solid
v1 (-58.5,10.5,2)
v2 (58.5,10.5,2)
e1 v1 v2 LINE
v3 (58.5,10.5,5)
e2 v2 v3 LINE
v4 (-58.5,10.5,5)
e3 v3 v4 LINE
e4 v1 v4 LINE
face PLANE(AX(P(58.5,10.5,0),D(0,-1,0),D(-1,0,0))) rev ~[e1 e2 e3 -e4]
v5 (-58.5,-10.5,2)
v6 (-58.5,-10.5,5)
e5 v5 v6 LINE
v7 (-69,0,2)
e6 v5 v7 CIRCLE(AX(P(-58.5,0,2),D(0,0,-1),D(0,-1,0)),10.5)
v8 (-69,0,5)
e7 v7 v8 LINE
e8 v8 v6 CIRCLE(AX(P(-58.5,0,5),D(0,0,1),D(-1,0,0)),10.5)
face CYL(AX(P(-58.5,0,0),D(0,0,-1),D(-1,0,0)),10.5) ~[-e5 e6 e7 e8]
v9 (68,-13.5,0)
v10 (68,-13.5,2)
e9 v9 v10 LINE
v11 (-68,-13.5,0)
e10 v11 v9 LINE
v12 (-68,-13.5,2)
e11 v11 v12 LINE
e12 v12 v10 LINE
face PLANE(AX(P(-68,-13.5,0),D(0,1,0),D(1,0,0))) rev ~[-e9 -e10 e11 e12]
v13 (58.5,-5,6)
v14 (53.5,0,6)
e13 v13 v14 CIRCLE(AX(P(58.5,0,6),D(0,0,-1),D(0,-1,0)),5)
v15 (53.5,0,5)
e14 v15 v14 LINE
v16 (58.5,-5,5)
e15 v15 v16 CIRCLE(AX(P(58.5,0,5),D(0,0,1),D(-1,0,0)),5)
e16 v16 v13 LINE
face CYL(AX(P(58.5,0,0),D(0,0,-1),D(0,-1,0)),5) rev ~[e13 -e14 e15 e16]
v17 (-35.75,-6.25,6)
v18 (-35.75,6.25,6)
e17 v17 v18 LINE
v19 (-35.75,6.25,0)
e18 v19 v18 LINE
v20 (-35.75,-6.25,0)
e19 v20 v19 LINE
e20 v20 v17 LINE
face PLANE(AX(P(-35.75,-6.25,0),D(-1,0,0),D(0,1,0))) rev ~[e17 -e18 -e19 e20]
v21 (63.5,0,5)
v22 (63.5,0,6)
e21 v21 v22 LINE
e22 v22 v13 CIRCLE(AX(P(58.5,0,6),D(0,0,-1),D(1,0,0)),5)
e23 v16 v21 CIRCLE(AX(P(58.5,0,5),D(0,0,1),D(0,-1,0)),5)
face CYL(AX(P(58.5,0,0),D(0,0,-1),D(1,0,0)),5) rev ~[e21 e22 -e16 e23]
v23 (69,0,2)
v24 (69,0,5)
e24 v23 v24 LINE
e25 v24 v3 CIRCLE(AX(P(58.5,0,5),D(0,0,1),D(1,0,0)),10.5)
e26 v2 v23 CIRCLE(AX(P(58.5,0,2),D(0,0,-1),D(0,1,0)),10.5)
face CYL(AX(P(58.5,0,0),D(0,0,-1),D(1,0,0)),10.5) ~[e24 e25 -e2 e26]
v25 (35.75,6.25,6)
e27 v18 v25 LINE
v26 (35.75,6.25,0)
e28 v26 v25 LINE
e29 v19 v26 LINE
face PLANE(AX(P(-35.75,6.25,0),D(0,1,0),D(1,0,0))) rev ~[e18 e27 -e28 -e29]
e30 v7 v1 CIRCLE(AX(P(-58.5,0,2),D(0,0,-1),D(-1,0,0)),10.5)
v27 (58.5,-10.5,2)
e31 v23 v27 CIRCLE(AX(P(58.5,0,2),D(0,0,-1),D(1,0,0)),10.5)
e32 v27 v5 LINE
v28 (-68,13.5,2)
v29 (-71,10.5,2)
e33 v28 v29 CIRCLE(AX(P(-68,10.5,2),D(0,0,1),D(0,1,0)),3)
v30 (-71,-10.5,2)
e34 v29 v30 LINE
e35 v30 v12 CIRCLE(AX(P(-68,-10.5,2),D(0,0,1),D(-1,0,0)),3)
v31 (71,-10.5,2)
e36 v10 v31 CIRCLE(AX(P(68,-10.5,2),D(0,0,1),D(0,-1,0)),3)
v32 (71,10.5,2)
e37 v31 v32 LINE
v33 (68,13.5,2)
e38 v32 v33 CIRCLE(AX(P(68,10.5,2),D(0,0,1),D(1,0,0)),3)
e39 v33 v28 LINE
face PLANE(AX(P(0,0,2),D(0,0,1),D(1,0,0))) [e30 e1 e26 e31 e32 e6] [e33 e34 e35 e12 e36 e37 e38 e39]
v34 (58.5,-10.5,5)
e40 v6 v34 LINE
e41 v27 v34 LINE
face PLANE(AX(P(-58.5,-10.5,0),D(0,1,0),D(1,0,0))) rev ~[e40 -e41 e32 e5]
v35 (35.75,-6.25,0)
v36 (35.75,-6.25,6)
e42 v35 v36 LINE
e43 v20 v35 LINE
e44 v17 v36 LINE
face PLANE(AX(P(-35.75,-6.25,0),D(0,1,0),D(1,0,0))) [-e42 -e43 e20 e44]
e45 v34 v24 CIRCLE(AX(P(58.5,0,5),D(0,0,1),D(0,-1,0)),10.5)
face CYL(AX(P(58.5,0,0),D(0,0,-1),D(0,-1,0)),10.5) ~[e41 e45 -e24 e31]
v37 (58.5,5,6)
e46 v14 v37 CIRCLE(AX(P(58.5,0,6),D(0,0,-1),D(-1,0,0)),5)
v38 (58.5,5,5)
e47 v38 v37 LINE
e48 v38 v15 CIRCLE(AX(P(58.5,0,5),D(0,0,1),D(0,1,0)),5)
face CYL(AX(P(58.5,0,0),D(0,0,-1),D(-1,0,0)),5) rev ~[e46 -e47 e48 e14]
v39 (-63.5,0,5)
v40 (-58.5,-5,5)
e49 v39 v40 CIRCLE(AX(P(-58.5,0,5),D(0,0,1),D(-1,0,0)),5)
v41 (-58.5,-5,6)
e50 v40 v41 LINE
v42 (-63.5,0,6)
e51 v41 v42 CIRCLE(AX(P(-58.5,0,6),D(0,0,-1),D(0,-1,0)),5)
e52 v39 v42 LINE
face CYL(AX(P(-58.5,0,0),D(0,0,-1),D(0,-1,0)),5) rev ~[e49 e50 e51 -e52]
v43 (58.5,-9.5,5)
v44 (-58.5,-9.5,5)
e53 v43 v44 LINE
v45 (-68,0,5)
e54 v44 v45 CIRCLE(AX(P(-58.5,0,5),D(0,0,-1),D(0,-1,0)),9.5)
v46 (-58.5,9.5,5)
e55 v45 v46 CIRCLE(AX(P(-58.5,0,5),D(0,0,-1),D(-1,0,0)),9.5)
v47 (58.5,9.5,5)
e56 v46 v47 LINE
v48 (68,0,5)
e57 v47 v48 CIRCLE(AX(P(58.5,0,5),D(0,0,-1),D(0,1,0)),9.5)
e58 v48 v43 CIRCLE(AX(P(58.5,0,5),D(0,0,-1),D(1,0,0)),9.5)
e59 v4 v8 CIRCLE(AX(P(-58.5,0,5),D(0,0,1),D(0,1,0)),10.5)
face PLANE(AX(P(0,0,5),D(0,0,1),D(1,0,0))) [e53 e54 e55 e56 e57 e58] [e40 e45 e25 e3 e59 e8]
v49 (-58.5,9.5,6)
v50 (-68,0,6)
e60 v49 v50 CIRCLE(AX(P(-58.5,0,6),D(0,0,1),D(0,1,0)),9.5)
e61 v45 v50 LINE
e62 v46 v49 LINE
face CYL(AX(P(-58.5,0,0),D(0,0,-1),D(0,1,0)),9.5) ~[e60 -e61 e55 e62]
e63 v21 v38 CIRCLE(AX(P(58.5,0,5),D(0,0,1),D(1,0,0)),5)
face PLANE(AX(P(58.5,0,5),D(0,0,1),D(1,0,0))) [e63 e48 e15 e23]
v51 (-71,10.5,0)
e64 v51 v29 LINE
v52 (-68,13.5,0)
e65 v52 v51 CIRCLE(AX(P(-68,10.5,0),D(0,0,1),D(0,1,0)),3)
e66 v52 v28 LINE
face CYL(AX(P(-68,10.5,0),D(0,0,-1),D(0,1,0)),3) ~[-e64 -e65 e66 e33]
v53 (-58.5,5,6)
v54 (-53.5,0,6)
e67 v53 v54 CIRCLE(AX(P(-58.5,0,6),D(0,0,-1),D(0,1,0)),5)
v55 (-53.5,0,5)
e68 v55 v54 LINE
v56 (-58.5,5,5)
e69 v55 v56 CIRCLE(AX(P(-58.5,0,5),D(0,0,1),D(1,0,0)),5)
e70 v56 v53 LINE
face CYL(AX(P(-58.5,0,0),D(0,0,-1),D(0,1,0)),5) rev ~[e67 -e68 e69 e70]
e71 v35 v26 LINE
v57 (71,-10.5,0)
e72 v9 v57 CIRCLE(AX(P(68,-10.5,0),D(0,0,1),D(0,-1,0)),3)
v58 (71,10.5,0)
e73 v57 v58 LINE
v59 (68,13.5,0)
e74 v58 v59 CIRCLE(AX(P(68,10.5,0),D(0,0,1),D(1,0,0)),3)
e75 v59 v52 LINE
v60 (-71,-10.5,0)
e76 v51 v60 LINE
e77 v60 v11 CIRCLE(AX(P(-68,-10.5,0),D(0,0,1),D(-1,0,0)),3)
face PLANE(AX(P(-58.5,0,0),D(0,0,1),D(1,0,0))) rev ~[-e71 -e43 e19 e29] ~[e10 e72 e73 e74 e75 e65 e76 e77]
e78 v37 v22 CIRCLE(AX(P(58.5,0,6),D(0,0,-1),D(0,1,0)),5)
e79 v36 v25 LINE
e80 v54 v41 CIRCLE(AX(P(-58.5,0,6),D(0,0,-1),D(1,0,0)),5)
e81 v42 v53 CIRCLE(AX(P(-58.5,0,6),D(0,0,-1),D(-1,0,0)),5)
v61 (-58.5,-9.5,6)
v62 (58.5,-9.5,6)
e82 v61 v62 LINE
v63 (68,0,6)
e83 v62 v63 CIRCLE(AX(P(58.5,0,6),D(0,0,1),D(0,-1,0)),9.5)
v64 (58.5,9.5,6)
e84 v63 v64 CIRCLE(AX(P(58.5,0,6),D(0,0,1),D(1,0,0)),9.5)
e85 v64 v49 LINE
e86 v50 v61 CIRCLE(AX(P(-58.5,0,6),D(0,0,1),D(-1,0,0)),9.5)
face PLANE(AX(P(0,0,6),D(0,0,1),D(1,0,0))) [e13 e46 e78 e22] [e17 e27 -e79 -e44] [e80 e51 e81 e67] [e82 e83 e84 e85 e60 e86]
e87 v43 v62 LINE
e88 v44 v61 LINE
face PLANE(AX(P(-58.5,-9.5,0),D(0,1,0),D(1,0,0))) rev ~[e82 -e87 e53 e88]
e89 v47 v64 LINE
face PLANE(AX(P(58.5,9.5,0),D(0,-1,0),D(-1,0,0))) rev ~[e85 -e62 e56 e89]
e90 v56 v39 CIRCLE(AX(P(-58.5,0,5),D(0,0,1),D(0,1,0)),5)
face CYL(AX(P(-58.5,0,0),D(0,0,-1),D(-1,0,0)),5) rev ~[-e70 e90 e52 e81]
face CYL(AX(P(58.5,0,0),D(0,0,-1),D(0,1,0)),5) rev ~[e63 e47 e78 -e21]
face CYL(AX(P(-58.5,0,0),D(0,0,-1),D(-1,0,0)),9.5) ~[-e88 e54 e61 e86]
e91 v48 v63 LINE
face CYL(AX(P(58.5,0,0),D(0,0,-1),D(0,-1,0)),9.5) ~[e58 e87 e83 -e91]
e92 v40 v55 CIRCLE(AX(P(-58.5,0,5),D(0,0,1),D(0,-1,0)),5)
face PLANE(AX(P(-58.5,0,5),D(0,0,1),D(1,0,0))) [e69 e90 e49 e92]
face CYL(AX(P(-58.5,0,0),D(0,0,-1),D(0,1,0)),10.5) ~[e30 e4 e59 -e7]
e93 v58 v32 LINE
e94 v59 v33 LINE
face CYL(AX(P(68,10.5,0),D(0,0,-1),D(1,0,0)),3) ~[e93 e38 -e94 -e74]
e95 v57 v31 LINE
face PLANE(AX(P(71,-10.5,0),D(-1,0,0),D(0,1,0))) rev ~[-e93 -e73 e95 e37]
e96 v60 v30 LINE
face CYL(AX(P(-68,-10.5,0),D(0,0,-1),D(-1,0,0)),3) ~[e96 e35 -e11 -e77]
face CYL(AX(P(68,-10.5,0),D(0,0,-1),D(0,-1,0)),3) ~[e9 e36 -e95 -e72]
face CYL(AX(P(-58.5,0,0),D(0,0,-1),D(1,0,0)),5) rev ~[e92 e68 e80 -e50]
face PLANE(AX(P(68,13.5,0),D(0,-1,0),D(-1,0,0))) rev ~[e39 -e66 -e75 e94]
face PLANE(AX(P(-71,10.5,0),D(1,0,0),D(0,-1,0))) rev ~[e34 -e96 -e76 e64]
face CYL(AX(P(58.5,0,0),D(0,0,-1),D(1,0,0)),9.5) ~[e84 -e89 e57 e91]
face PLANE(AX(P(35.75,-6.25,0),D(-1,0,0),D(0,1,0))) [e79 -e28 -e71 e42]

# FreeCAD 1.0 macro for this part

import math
import FreeCAD as App
import Part
import Sketcher

V = App.Vector
Q = App.Units.Quantity


def add_polygon(sketch, points):
    """Adds a closed chain of lines whose ends are joined by coincident constraints."""
    first, n = sketch.GeometryCount, len(points)
    for a, b in zip(points, points[1:] + points[:1]):
        sketch.addGeometry(Part.LineSegment(App.Vector(*a, 0), App.Vector(*b, 0)), False)
    for i in range(n):
        sketch.addConstraint(Sketcher.Constraint("Coincident", first + i, 2, first + (i + 1) % n, 1))

doc = App.newDocument("Part")
body = doc.addObject("PartDesign::Body", "Body")

sketch1 = doc.addObject("Sketcher::SketchObject", "Sketch")
body.addObject(sketch1)
sketch1.AttachmentSupport = (doc.XY_Plane, [""])
sketch1.MapMode = "FlatFace"
sketch1.addGeometry([
    Part.LineSegment(V(-71, 10.5, 0), V(-71, -10.5, 0)),
    Part.ArcOfCircle(Part.Circle(V(-68, -10.5, 0), V(0, 0, 1), 3), math.radians(180), math.radians(270)),
    Part.LineSegment(V(-68, -13.5, 0), V(68, -13.5, 0)),
    Part.ArcOfCircle(Part.Circle(V(68, -10.5, 0), V(0, 0, 1), 3), math.radians(-90), math.radians(0)),
    Part.LineSegment(V(71, -10.5, 0), V(71, 10.5, 0)),
    Part.ArcOfCircle(Part.Circle(V(68, 10.5, 0), V(0, 0, 1), 3), math.radians(0), math.radians(90)),
    Part.LineSegment(V(68, 13.5, 0), V(-68, 13.5, 0)),
    Part.ArcOfCircle(Part.Circle(V(-68, 10.5, 0), V(0, 0, 1), 3), math.radians(90), math.radians(180)),
    Part.ArcOfCircle(Part.Circle(V(58.5, 0, 0), V(0, 0, 1), 10.5), math.radians(-90), math.radians(0)),
    Part.LineSegment(V(58.5, -10.5, 0), V(-58.5, -10.5, 0)),
    Part.ArcOfCircle(Part.Circle(V(-58.5, 0, 0), V(0, 0, 1), 10.5), math.radians(180), math.radians(270)),
    Part.ArcOfCircle(Part.Circle(V(-58.5, 0, 0), V(0, 0, 1), 10.5), math.radians(90), math.radians(180)),
    Part.LineSegment(V(-58.5, 10.5, 0), V(58.5, 10.5, 0)),
    Part.ArcOfCircle(Part.Circle(V(58.5, 0, 0), V(0, 0, 1), 10.5), math.radians(0), math.radians(90)),
], False)
sketch1.addConstraint([
    Sketcher.Constraint("Tangent", 0, 2, 1, 1),
    Sketcher.Constraint("Tangent", 1, 2, 2, 1),
    Sketcher.Constraint("Tangent", 2, 2, 3, 1),
    Sketcher.Constraint("Tangent", 3, 2, 4, 1),
    Sketcher.Constraint("Tangent", 4, 2, 5, 1),
    Sketcher.Constraint("Tangent", 5, 2, 6, 1),
    Sketcher.Constraint("Tangent", 6, 2, 7, 1),
    Sketcher.Constraint("Tangent", 7, 2, 0, 1),
    Sketcher.Constraint("Tangent", 8, 1, 9, 1),
    Sketcher.Constraint("Tangent", 9, 2, 10, 2),
    Sketcher.Constraint("Tangent", 10, 1, 11, 2),
    Sketcher.Constraint("Tangent", 11, 1, 12, 1),
    Sketcher.Constraint("Tangent", 12, 2, 13, 2),
    Sketcher.Constraint("Tangent", 13, 1, 8, 2),
    Sketcher.Constraint("Vertical", 0),
    Sketcher.Constraint("Horizontal", 2),
    Sketcher.Constraint("Vertical", 4),
    Sketcher.Constraint("Horizontal", 6),
    Sketcher.Constraint("Horizontal", 9),
    Sketcher.Constraint("Horizontal", 12),
    Sketcher.Constraint("Equal", 1, 3),
    Sketcher.Constraint("Equal", 3, 5),
    Sketcher.Constraint("Equal", 5, 7),
    Sketcher.Constraint("Equal", 8, 10),
    Sketcher.Constraint("Equal", 10, 11),
    Sketcher.Constraint("Symmetric", 1, 3, 5, 3, -1, 1),
    Sketcher.Constraint("Symmetric", 8, 3, 10, 3, -1, 1),
    Sketcher.Constraint("PointOnObject", 10, 1, -1),
    Sketcher.Constraint("PointOnObject", 13, 1, -1),
    Sketcher.Constraint("Horizontal", 3, 2, 8, 1),
    Sketcher.Constraint("Radius", 1, Q("3 mm")),
    Sketcher.Constraint("Radius", 8, Q("10.5 mm")),
    Sketcher.Constraint("DistanceX", 2, 1, 2, 2, Q("136 mm")),
    Sketcher.Constraint("DistanceX", 9, 2, 9, 1, Q("117 mm")),
])
pad1 = doc.addObject("PartDesign::Pad", "Pad")
body.addObject(pad1)
pad1.Profile = sketch1
pad1.Length = 2
body2 = doc.addObject("PartDesign::Body", "Body001")

sketch2 = doc.addObject("Sketcher::SketchObject", "Sketch001")
body2.addObject(sketch2)
sketch2.AttachmentSupport = (doc.getObject("XY_Plane001"), [""])
sketch2.MapMode = "FlatFace"
sketch2.addGeometry(Part.ArcOfCircle(Part.Circle(V(-58, 0, 0), V(0, 0, 1), 10), math.radians(180), math.radians(270)), False)
sketch2.addGeometry(Part.LineSegment(V(-58, -10, 0), V(58, -10, 0)), False)
sketch2.addGeometry(Part.ArcOfCircle(Part.Circle(V(58, 0, 0), V(0, 0, 1), 10), math.radians(-90), math.radians(0)), False)
sketch2.addGeometry(Part.ArcOfCircle(Part.Circle(V(58, 0, 0), V(0, 0, 1), 10), math.radians(0), math.radians(90)), False)
sketch2.addGeometry(Part.LineSegment(V(58, 10, 0), V(-58, 10, 0)), False)
sketch2.addGeometry(Part.ArcOfCircle(Part.Circle(V(-58, 0, 0), V(0, 0, 1), 10), math.radians(90), math.radians(180)), False)
sketch2.addGeometry(Part.ArcOfCircle(Part.Circle(V(-58, 0, 0), V(0, 0, 1), 5), math.radians(180), math.radians(270)), False)
sketch2.addGeometry(Part.ArcOfCircle(Part.Circle(V(-58, 0, 0), V(0, 0, 1), 5), math.radians(90), math.radians(180)), False)
sketch2.addGeometry(Part.ArcOfCircle(Part.Circle(V(-58, 0, 0), V(0, 0, 1), 5), math.radians(0), math.radians(90)), False)
sketch2.addGeometry(Part.ArcOfCircle(Part.Circle(V(-58, 0, 0), V(0, 0, 1), 5), math.radians(-90), math.radians(0)), False)
add_polygon(sketch2, [(36, -6), (-36, -6), (-36, 6), (36, 6)])
sketch2.addGeometry(Part.ArcOfCircle(Part.Circle(V(58, 0, 0), V(0, 0, 1), 5), math.radians(180), math.radians(270)), False)
sketch2.addGeometry(Part.ArcOfCircle(Part.Circle(V(58, 0, 0), V(0, 0, 1), 5), math.radians(90), math.radians(180)), False)
sketch2.addGeometry(Part.ArcOfCircle(Part.Circle(V(58, 0, 0), V(0, 0, 1), 5), math.radians(0), math.radians(90)), False)
sketch2.addGeometry(Part.ArcOfCircle(Part.Circle(V(58, 0, 0), V(0, 0, 1), 5), math.radians(-90), math.radians(0)), False)
sketch2.addConstraint([
    Sketcher.Constraint("Tangent", 0, 2, 1, 1),
    Sketcher.Constraint("Tangent", 1, 2, 2, 1),
    Sketcher.Constraint("Tangent", 2, 2, 3, 1),
    Sketcher.Constraint("Tangent", 3, 2, 4, 1),
    Sketcher.Constraint("Tangent", 4, 2, 5, 1),
    Sketcher.Constraint("Tangent", 5, 2, 0, 1),
    Sketcher.Constraint("Tangent", 6, 1, 7, 2),
    Sketcher.Constraint("Tangent", 7, 1, 8, 2),
    Sketcher.Constraint("Tangent", 8, 1, 9, 2),
    Sketcher.Constraint("Tangent", 9, 1, 6, 2),
    Sketcher.Constraint("Tangent", 14, 1, 15, 2),
    Sketcher.Constraint("Tangent", 15, 1, 16, 2),
    Sketcher.Constraint("Tangent", 16, 1, 17, 2),
    Sketcher.Constraint("Tangent", 17, 1, 14, 2),
    Sketcher.Constraint("Horizontal", 1),
    Sketcher.Constraint("Horizontal", 4),
    Sketcher.Constraint("Horizontal", 10),
    Sketcher.Constraint("Vertical", 11),
    Sketcher.Constraint("Horizontal", 12),
    Sketcher.Constraint("Vertical", 13),
    Sketcher.Constraint("Coincident", 6, 3, 0, 3),
    Sketcher.Constraint("Coincident", 14, 3, 2, 3),
    Sketcher.Constraint("Equal", 0, 2),
    Sketcher.Constraint("Equal", 2, 3),
    Sketcher.Constraint("Equal", 6, 7),
    Sketcher.Constraint("Equal", 9, 14),
    Sketcher.Constraint("Equal", 14, 15),
    Sketcher.Constraint("Symmetric", 0, 3, 2, 3, -1, 1),
    Sketcher.Constraint("Symmetric", 10, 2, 12, 2, -1, 1),
    Sketcher.Constraint("PointOnObject", 2, 2, -1),
    Sketcher.Constraint("PointOnObject", 5, 2, -1),
    Sketcher.Constraint("PointOnObject", 6, 1, -1),
    Sketcher.Constraint("PointOnObject", 8, 1, -1),
    Sketcher.Constraint("PointOnObject", 14, 1, -1),
    Sketcher.Constraint("PointOnObject", 16, 1, -1),
    Sketcher.Constraint("Vertical", 4, 2, 7, 1),
    Sketcher.Constraint("Vertical", 7, 1, 9, 1),
    Sketcher.Constraint("Vertical", 3, 2, 15, 1),
    Sketcher.Constraint("Vertical", 15, 1, 17, 1),
    Sketcher.Constraint("Radius", 6, Q("5 mm")),
    Sketcher.Constraint("Radius", 0, Q("9.5 mm")),
    Sketcher.Constraint("DistanceX", 1, 1, 1, 2, Q("117 mm")),
    Sketcher.Constraint("DistanceX", 10, 2, 10, 1, Q("71.5 mm")),
    Sketcher.Constraint("DistanceY", 11, 1, 11, 2, Q("12.5 mm")),
])
pad2 = doc.addObject("PartDesign::Pad", "Pad001")
body2.addObject(pad2)
pad2.Profile = sketch2
pad2.Length = 6
body.AllowCompound = True
doc.recompute()

boolean = doc.addObject("PartDesign::Boolean", "Boolean")
body.addObject(boolean)
boolean.Type = "Fuse"
boolean.addObjects([body2])

sketch3 = doc.addObject("Sketcher::SketchObject", "Sketch002")
body.addObject(sketch3)
sketch3.AttachmentSupport = (doc.XY_Plane, [""])
sketch3.MapMode = "FlatFace"
sketch3.addGeometry([
    Part.ArcOfCircle(Part.Circle(V(-58, 0, 0), V(0, 0, 1), 10), math.radians(180), math.radians(270)),
    Part.LineSegment(V(-58, -10, 0), V(58, -10, 0)),
    Part.ArcOfCircle(Part.Circle(V(58, 0, 0), V(0, 0, 1), 10), math.radians(-90), math.radians(0)),
    Part.ArcOfCircle(Part.Circle(V(58, 0, 0), V(0, 0, 1), 10), math.radians(0), math.radians(90)),
    Part.LineSegment(V(58, 10, 0), V(-58, 10, 0)),
    Part.ArcOfCircle(Part.Circle(V(-58, 0, 0), V(0, 0, 1), 10), math.radians(90), math.radians(180)),
    Part.ArcOfCircle(Part.Circle(V(58, 0, 0), V(0, 0, 1), 10), math.radians(-90), math.radians(0)),
    Part.LineSegment(V(58, -10, 0), V(-58, -10, 0)),
    Part.ArcOfCircle(Part.Circle(V(-58, 0, 0), V(0, 0, 1), 10), math.radians(180), math.radians(270)),
    Part.ArcOfCircle(Part.Circle(V(-58, 0, 0), V(0, 0, 1), 10), math.radians(90), math.radians(180)),
    Part.LineSegment(V(-58, 10, 0), V(58, 10, 0)),
    Part.ArcOfCircle(Part.Circle(V(58, 0, 0), V(0, 0, 1), 10), math.radians(0), math.radians(90)),
], False)
sketch3.addConstraint([
    Sketcher.Constraint("Tangent", 0, 2, 1, 1),
    Sketcher.Constraint("Tangent", 1, 2, 2, 1),
    Sketcher.Constraint("Tangent", 2, 2, 3, 1),
    Sketcher.Constraint("Tangent", 3, 2, 4, 1),
    Sketcher.Constraint("Tangent", 4, 2, 5, 1),
    Sketcher.Constraint("Tangent", 5, 2, 0, 1),
    Sketcher.Constraint("Tangent", 6, 1, 7, 1),
    Sketcher.Constraint("Tangent", 7, 2, 8, 2),
    Sketcher.Constraint("Tangent", 8, 1, 9, 2),
    Sketcher.Constraint("Tangent", 9, 1, 10, 1),
    Sketcher.Constraint("Tangent", 10, 2, 11, 2),
    Sketcher.Constraint("Tangent", 11, 1, 6, 2),
    Sketcher.Constraint("Horizontal", 1),
    Sketcher.Constraint("Horizontal", 4),
    Sketcher.Constraint("Horizontal", 7),
    Sketcher.Constraint("Horizontal", 10),
    Sketcher.Constraint("Coincident", 6, 3, 2, 3),
    Sketcher.Constraint("Coincident", 8, 3, 0, 3),
    Sketcher.Constraint("Equal", 0, 2),
    Sketcher.Constraint("Equal", 2, 3),
    Sketcher.Constraint("Equal", 8, 9),
    Sketcher.Constraint("Symmetric", 0, 3, 2, 3, -1, 1),
    Sketcher.Constraint("PointOnObject", 2, 2, -1),
    Sketcher.Constraint("PointOnObject", 5, 2, -1),
    Sketcher.Constraint("PointOnObject", 8, 1, -1),
    Sketcher.Constraint("PointOnObject", 11, 1, -1),
    Sketcher.Constraint("Radius", 0, Q("10.5 mm")),
    Sketcher.Constraint("Radius", 6, Q("9.5 mm")),
    Sketcher.Constraint("DistanceX", 1, 1, 1, 2, Q("117 mm")),
])
pad3 = doc.addObject("PartDesign::Pad", "Pad002")
body.addObject(pad3)
pad3.Profile = sketch3
pad3.Length = 5

sketch4 = doc.addObject("Sketcher::SketchObject", "Sketch003")
body.addObject(sketch4)
sketch4.AttachmentSupport = (doc.XY_Plane, [""])
sketch4.MapMode = "FlatFace"
sketch4.addGeometry([
    Part.ArcOfCircle(Part.Circle(V(-58, 0, 0), V(0, 0, 1), 5), math.radians(0), math.radians(90)),
    Part.ArcOfCircle(Part.Circle(V(-58, 0, 0), V(0, 0, 1), 5), math.radians(90), math.radians(180)),
    Part.ArcOfCircle(Part.Circle(V(-58, 0, 0), V(0, 0, 1), 5), math.radians(180), math.radians(270)),
    Part.ArcOfCircle(Part.Circle(V(-58, 0, 0), V(0, 0, 1), 5), math.radians(-90), math.radians(0)),
    Part.ArcOfCircle(Part.Circle(V(58, 0, 0), V(0, 0, 1), 5), math.radians(0), math.radians(90)),
    Part.ArcOfCircle(Part.Circle(V(58, 0, 0), V(0, 0, 1), 5), math.radians(90), math.radians(180)),
    Part.ArcOfCircle(Part.Circle(V(58, 0, 0), V(0, 0, 1), 5), math.radians(180), math.radians(270)),
    Part.ArcOfCircle(Part.Circle(V(58, 0, 0), V(0, 0, 1), 5), math.radians(-90), math.radians(0)),
], False)
sketch4.addConstraint([
    Sketcher.Constraint("Tangent", 0, 2, 1, 1),
    Sketcher.Constraint("Tangent", 1, 2, 2, 1),
    Sketcher.Constraint("Tangent", 2, 2, 3, 1),
    Sketcher.Constraint("Tangent", 3, 2, 0, 1),
    Sketcher.Constraint("Tangent", 4, 2, 5, 1),
    Sketcher.Constraint("Tangent", 5, 2, 6, 1),
    Sketcher.Constraint("Tangent", 6, 2, 7, 1),
    Sketcher.Constraint("Tangent", 7, 2, 4, 1),
    Sketcher.Constraint("Equal", 0, 1),
    Sketcher.Constraint("Equal", 3, 4),
    Sketcher.Constraint("Equal", 4, 5),
    Sketcher.Constraint("Symmetric", 0, 3, 4, 3, -1, 1),
    Sketcher.Constraint("Symmetric", 0, 2, 4, 2, -2),
    Sketcher.Constraint("PointOnObject", 1, 2, -1),
    Sketcher.Constraint("PointOnObject", 3, 2, -1),
    Sketcher.Constraint("PointOnObject", 5, 2, -1),
    Sketcher.Constraint("PointOnObject", 7, 2, -1),
    Sketcher.Constraint("Vertical", 3, 3, 0, 2),
    Sketcher.Constraint("Vertical", 0, 2, 2, 2),
    Sketcher.Constraint("Vertical", 4, 2, 6, 2),
    Sketcher.Constraint("Radius", 0, Q("5 mm")),
    Sketcher.Constraint("DistanceX", 0, 3, 4, 3, Q("117 mm")),
])
pad4 = doc.addObject("PartDesign::Pad", "Pad003")
body.addObject(pad4)
pad4.Profile = sketch4
pad4.Length = 5

doc.recompute()
